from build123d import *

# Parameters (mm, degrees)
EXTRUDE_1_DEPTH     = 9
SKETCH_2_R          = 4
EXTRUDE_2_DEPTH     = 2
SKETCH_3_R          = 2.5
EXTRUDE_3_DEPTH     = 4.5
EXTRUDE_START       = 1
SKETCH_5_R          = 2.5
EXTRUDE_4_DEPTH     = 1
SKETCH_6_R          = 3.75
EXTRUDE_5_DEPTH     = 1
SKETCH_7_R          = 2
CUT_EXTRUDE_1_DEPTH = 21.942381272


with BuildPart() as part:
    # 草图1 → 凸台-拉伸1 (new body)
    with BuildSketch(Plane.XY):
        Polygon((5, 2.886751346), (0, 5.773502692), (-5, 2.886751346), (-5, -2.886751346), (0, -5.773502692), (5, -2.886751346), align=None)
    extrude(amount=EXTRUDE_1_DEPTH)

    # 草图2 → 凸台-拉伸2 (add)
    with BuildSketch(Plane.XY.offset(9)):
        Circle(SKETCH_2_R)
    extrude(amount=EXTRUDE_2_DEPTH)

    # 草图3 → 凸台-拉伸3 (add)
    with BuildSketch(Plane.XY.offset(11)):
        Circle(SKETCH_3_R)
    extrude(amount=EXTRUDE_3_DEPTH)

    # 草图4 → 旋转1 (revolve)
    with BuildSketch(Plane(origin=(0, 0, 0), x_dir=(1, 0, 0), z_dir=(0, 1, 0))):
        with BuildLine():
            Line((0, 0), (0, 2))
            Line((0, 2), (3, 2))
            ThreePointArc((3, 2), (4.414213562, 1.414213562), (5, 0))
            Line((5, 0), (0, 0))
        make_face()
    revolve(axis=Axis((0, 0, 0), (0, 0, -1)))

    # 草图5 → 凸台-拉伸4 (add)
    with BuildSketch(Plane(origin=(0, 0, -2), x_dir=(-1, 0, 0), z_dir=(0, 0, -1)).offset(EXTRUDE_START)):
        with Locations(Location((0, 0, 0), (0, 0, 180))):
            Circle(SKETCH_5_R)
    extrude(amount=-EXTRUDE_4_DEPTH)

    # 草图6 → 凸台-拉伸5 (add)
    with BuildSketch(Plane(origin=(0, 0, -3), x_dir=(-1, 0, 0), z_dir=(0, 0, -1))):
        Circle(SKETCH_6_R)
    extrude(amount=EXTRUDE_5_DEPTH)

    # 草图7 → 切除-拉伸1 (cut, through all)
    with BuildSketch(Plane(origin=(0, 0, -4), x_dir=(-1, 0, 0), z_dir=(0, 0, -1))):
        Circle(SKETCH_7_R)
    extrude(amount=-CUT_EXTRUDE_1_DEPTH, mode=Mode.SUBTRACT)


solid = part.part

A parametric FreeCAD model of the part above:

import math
import FreeCAD as App
import Part
import Sketcher
from FreeCAD import Vector
Q = App.Units.Quantity

doc = App.newDocument("Part")
params = doc.addObject("Spreadsheet::Sheet", "Params")
for row, (alias, value) in enumerate([
    ("pad1_length", "9 mm"),
    ("sketch2_diameter", "8 mm"),
    ("pad2_length", "2 mm"),
    ("sketch3_diameter", "5 mm"),
    ("pad3_length", "4.5 mm"),
    ("sketch4_radius", "2 mm"),
    ("sketch4_width", "5 mm"),
    ("revolution_angle", "360 deg"),
    ("sketch5_diameter", "5 mm"),
    ("pad4_length", "1 mm"),
    ("sketch6_diameter", "7.5 mm"),
    ("pad5_length", "1 mm"),
    ("sketch7_diameter", "4 mm"),
], start=1):
    params.set(f"A{row}", alias)
    params.set(f"B{row}", "=" + value)
    params.setAlias(f"B{row}", alias)

body = doc.addObject("PartDesign::Body", "Body")

# Sketch on XY plane
sketch1 = doc.addObject("Sketcher::SketchObject", "Sketch")
body.addObject(sketch1)
sketch1.AttachmentSupport = (doc.XY_Plane, [""])
sketch1.MapMode = "FlatFace"
sketch1.addGeometry(Part.LineSegment(Vector(5, 2.886751, 0), Vector(0, 5.773503, 0)), False)
sketch1.addGeometry(Part.LineSegment(Vector(0, 5.773503, 0), Vector(-5, 2.886751, 0)), False)
sketch1.addGeometry(Part.LineSegment(Vector(-5, 2.886751, 0), Vector(-5, -2.886751, 0)), False)
sketch1.addGeometry(Part.LineSegment(Vector(-5, -2.886751, 0), Vector(0, -5.773503, 0)), False)
sketch1.addGeometry(Part.LineSegment(Vector(0, -5.773503, 0), Vector(5, -2.886751, 0)), False)
sketch1.addGeometry(Part.LineSegment(Vector(5, -2.886751, 0), Vector(5, 2.886751, 0)), False)
sketch1.addConstraint(Sketcher.Constraint("Coincident", 0, 2, 1, 1))
sketch1.addConstraint(Sketcher.Constraint("Coincident", 1, 2, 2, 1))
sketch1.addConstraint(Sketcher.Constraint("Coincident", 2, 2, 3, 1))
sketch1.addConstraint(Sketcher.Constraint("Coincident", 3, 2, 4, 1))
sketch1.addConstraint(Sketcher.Constraint("Coincident", 4, 2, 5, 1))
sketch1.addConstraint(Sketcher.Constraint("Coincident", 5, 2, 0, 1))
sketch1.addConstraint(Sketcher.Constraint("Vertical", 2))
sketch1.addConstraint(Sketcher.Constraint("Vertical", 5))
sketch1.addConstraint(Sketcher.Constraint("Symmetric", 0, 2, 3, 2, -1, 1))
sketch1.addConstraint(Sketcher.Constraint("Symmetric", 1, 2, 4, 2, -1, 1))
sketch1.addConstraint(Sketcher.Constraint("PointOnObject", 0, 2, -2))
sketch1.addConstraint(Sketcher.Constraint("Parallel", 0, 3))
sketch1.addConstraint(Sketcher.Constraint("Horizontal", 2, 2, 4, 2))
sketch1.addConstraint(Sketcher.Constraint("Angle", 0, Q("150 deg")))
sketch1.addConstraint(Sketcher.Constraint("DistanceX", 1, 2, -1, 1, Q("5 mm")))
sketch1.addConstraint(Sketcher.Constraint("DistanceY", 2, 2, 2, 1, Q("5.773503 mm")))
pad1 = doc.addObject("PartDesign::Pad", "Pad")
body.addObject(pad1)
pad1.Profile = sketch1
pad1.setExpression("Length", "Params.pad1_length")

# Sketch on XY plane
sketch2 = doc.addObject("Sketcher::SketchObject", "Sketch001")
body.addObject(sketch2)
sketch2.AttachmentSupport = (doc.XY_Plane, [""])
sketch2.MapMode = "FlatFace"
sketch2.AttachmentOffset = App.Placement(Vector(0, 0, 9), App.Rotation())
sketch2.addGeometry(Part.Circle(Vector(0, 0, 0), Vector(0, 0, 1), 4), False)
sketch2.addConstraint(Sketcher.Constraint("Coincident", 0, 3, -1, 1))
sketch2.addConstraint(Sketcher.Constraint("Diameter", 0, Q("8 mm")))
sketch2.setExpression("Constraints[1]", "Params.sketch2_diameter")
pad2 = doc.addObject("PartDesign::Pad", "Pad001")
body.addObject(pad2)
pad2.Profile = sketch2
pad2.setExpression("Length", "Params.pad2_length")

# Sketch on XY plane
sketch3 = doc.addObject("Sketcher::SketchObject", "Sketch002")
body.addObject(sketch3)
sketch3.AttachmentSupport = (doc.XY_Plane, [""])
sketch3.MapMode = "FlatFace"
sketch3.AttachmentOffset = App.Placement(Vector(0, 0, 11), App.Rotation())
sketch3.addGeometry(Part.Circle(Vector(0, 0, 0), Vector(0, 0, 1), 2.5), False)
sketch3.addConstraint(Sketcher.Constraint("Coincident", 0, 3, -1, 1))
sketch3.addConstraint(Sketcher.Constraint("Diameter", 0, Q("5 mm")))
sketch3.setExpression("Constraints[1]", "Params.sketch3_diameter")
pad3 = doc.addObject("PartDesign::Pad", "Pad002")
body.addObject(pad3)
pad3.Profile = sketch3
pad3.setExpression("Length", "Params.pad3_length")

# Sketch on XZ plane
sketch4 = doc.addObject("Sketcher::SketchObject", "Sketch003")
body.addObject(sketch4)
sketch4.AttachmentSupport = (doc.XZ_Plane, [""])
sketch4.MapMode = "FlatFace"
sketch4.addGeometry(Part.LineSegment(Vector(0, -2, 0), Vector(0, 0, 0)), False)
sketch4.addGeometry(Part.LineSegment(Vector(0, 0, 0), Vector(5, 0, 0)), False)
sketch4.addGeometry(Part.ArcOfCircle(Part.Circle(Vector(3, 0, 0), Vector(0, 0, 1), 2), math.radians(-90), math.radians(0)), False)
sketch4.addGeometry(Part.LineSegment(Vector(3, -2, 0), Vector(0, -2, 0)), False)
sketch4.addConstraint(Sketcher.Constraint("Coincident", 0, 2, 1, 1))
sketch4.addConstraint(Sketcher.Constraint("Coincident", 1, 2, 2, 2))
sketch4.addConstraint(Sketcher.Constraint("Tangent", 2, 1, 3, 1))
sketch4.addConstraint(Sketcher.Constraint("Coincident", 3, 2, 0, 1))
sketch4.addConstraint(Sketcher.Constraint("Vertical", 0))
sketch4.addConstraint(Sketcher.Constraint("Horizontal", 1))
sketch4.addConstraint(Sketcher.Constraint("Horizontal", 3))
sketch4.addConstraint(Sketcher.Constraint("Coincident", 0, 2, -1, 1))
sketch4.addConstraint(Sketcher.Constraint("PointOnObject", 2, 3, -1))
sketch4.addConstraint(Sketcher.Constraint("Radius", 2, Q("2 mm")))
sketch4.addConstraint(Sketcher.Constraint("DistanceX", 1, 1, 1, 2, Q("5 mm")))
sketch4.setExpression("Constraints[9]", "Params.sketch4_radius")
sketch4.setExpression("Constraints[10]", "Params.sketch4_width")
revolution = doc.addObject("PartDesign::Revolution", "Revolution")
body.addObject(revolution)
revolution.Profile = sketch4
revolution.ReferenceAxis = (sketch4, ["V_Axis"])
revolution.setExpression("Angle", "Params.revolution_angle")

# Sketch on XY plane
sketch5 = doc.addObject("Sketcher::SketchObject", "Sketch004")
body.addObject(sketch5)
sketch5.AttachmentSupport = (doc.XY_Plane, [""])
sketch5.MapMode = "FlatFace"
sketch5.AttachmentOffset = App.Placement(Vector(0, 0, -3), App.Rotation())
sketch5.addGeometry(Part.Circle(Vector(0, 0, 0), Vector(0, 0, 1), 2.5), False)
sketch5.addConstraint(Sketcher.Constraint("Coincident", 0, 3, -1, 1))
sketch5.addConstraint(Sketcher.Constraint("Diameter", 0, Q("5 mm")))
sketch5.setExpression("Constraints[1]", "Params.sketch5_diameter")
pad4 = doc.addObject("PartDesign::Pad", "Pad003")
body.addObject(pad4)
pad4.Profile = sketch5
pad4.setExpression("Length", "Params.pad4_length")

# Sketch on XY plane
sketch6 = doc.addObject("Sketcher::SketchObject", "Sketch005")
body.addObject(sketch6)
sketch6.AttachmentSupport = (doc.XY_Plane, [""])
sketch6.MapMode = "FlatFace"
sketch6.AttachmentOffset = App.Placement(Vector(0, 0, -3), App.Rotation())
sketch6.addGeometry(Part.Circle(Vector(0, 0, 0), Vector(0, 0, 1), 3.75), False)
sketch6.addConstraint(Sketcher.Constraint("Coincident", 0, 3, -1, 1))
sketch6.addConstraint(Sketcher.Constraint("Diameter", 0, Q("7.5 mm")))
sketch6.setExpression("Constraints[1]", "Params.sketch6_diameter")
pad5 = doc.addObject("PartDesign::Pad", "Pad004")
body.addObject(pad5)
pad5.Profile = sketch6
pad5.setExpression("Length", "Params.pad5_length")
pad5.Reversed = True

# Sketch on XY plane
sketch7 = doc.addObject("Sketcher::SketchObject", "Sketch006")
body.addObject(sketch7)
sketch7.AttachmentSupport = (doc.XY_Plane, [""])
sketch7.MapMode = "FlatFace"
sketch7.AttachmentOffset = App.Placement(Vector(0, 0, -4), App.Rotation())
sketch7.addGeometry(Part.Circle(Vector(0, 0, 0), Vector(0, 0, 1), 2), False)
sketch7.addConstraint(Sketcher.Constraint("Coincident", 0, 3, -1, 1))
sketch7.addConstraint(Sketcher.Constraint("Diameter", 0, Q("4 mm")))
sketch7.setExpression("Constraints[1]", "Params.sketch7_diameter")
pocket1 = doc.addObject("PartDesign::Pocket", "Pocket")
body.addObject(pocket1)
pocket1.Profile = sketch7
pocket1.Type = "ThroughAll"
pocket1.Reversed = True

doc.recompute()
